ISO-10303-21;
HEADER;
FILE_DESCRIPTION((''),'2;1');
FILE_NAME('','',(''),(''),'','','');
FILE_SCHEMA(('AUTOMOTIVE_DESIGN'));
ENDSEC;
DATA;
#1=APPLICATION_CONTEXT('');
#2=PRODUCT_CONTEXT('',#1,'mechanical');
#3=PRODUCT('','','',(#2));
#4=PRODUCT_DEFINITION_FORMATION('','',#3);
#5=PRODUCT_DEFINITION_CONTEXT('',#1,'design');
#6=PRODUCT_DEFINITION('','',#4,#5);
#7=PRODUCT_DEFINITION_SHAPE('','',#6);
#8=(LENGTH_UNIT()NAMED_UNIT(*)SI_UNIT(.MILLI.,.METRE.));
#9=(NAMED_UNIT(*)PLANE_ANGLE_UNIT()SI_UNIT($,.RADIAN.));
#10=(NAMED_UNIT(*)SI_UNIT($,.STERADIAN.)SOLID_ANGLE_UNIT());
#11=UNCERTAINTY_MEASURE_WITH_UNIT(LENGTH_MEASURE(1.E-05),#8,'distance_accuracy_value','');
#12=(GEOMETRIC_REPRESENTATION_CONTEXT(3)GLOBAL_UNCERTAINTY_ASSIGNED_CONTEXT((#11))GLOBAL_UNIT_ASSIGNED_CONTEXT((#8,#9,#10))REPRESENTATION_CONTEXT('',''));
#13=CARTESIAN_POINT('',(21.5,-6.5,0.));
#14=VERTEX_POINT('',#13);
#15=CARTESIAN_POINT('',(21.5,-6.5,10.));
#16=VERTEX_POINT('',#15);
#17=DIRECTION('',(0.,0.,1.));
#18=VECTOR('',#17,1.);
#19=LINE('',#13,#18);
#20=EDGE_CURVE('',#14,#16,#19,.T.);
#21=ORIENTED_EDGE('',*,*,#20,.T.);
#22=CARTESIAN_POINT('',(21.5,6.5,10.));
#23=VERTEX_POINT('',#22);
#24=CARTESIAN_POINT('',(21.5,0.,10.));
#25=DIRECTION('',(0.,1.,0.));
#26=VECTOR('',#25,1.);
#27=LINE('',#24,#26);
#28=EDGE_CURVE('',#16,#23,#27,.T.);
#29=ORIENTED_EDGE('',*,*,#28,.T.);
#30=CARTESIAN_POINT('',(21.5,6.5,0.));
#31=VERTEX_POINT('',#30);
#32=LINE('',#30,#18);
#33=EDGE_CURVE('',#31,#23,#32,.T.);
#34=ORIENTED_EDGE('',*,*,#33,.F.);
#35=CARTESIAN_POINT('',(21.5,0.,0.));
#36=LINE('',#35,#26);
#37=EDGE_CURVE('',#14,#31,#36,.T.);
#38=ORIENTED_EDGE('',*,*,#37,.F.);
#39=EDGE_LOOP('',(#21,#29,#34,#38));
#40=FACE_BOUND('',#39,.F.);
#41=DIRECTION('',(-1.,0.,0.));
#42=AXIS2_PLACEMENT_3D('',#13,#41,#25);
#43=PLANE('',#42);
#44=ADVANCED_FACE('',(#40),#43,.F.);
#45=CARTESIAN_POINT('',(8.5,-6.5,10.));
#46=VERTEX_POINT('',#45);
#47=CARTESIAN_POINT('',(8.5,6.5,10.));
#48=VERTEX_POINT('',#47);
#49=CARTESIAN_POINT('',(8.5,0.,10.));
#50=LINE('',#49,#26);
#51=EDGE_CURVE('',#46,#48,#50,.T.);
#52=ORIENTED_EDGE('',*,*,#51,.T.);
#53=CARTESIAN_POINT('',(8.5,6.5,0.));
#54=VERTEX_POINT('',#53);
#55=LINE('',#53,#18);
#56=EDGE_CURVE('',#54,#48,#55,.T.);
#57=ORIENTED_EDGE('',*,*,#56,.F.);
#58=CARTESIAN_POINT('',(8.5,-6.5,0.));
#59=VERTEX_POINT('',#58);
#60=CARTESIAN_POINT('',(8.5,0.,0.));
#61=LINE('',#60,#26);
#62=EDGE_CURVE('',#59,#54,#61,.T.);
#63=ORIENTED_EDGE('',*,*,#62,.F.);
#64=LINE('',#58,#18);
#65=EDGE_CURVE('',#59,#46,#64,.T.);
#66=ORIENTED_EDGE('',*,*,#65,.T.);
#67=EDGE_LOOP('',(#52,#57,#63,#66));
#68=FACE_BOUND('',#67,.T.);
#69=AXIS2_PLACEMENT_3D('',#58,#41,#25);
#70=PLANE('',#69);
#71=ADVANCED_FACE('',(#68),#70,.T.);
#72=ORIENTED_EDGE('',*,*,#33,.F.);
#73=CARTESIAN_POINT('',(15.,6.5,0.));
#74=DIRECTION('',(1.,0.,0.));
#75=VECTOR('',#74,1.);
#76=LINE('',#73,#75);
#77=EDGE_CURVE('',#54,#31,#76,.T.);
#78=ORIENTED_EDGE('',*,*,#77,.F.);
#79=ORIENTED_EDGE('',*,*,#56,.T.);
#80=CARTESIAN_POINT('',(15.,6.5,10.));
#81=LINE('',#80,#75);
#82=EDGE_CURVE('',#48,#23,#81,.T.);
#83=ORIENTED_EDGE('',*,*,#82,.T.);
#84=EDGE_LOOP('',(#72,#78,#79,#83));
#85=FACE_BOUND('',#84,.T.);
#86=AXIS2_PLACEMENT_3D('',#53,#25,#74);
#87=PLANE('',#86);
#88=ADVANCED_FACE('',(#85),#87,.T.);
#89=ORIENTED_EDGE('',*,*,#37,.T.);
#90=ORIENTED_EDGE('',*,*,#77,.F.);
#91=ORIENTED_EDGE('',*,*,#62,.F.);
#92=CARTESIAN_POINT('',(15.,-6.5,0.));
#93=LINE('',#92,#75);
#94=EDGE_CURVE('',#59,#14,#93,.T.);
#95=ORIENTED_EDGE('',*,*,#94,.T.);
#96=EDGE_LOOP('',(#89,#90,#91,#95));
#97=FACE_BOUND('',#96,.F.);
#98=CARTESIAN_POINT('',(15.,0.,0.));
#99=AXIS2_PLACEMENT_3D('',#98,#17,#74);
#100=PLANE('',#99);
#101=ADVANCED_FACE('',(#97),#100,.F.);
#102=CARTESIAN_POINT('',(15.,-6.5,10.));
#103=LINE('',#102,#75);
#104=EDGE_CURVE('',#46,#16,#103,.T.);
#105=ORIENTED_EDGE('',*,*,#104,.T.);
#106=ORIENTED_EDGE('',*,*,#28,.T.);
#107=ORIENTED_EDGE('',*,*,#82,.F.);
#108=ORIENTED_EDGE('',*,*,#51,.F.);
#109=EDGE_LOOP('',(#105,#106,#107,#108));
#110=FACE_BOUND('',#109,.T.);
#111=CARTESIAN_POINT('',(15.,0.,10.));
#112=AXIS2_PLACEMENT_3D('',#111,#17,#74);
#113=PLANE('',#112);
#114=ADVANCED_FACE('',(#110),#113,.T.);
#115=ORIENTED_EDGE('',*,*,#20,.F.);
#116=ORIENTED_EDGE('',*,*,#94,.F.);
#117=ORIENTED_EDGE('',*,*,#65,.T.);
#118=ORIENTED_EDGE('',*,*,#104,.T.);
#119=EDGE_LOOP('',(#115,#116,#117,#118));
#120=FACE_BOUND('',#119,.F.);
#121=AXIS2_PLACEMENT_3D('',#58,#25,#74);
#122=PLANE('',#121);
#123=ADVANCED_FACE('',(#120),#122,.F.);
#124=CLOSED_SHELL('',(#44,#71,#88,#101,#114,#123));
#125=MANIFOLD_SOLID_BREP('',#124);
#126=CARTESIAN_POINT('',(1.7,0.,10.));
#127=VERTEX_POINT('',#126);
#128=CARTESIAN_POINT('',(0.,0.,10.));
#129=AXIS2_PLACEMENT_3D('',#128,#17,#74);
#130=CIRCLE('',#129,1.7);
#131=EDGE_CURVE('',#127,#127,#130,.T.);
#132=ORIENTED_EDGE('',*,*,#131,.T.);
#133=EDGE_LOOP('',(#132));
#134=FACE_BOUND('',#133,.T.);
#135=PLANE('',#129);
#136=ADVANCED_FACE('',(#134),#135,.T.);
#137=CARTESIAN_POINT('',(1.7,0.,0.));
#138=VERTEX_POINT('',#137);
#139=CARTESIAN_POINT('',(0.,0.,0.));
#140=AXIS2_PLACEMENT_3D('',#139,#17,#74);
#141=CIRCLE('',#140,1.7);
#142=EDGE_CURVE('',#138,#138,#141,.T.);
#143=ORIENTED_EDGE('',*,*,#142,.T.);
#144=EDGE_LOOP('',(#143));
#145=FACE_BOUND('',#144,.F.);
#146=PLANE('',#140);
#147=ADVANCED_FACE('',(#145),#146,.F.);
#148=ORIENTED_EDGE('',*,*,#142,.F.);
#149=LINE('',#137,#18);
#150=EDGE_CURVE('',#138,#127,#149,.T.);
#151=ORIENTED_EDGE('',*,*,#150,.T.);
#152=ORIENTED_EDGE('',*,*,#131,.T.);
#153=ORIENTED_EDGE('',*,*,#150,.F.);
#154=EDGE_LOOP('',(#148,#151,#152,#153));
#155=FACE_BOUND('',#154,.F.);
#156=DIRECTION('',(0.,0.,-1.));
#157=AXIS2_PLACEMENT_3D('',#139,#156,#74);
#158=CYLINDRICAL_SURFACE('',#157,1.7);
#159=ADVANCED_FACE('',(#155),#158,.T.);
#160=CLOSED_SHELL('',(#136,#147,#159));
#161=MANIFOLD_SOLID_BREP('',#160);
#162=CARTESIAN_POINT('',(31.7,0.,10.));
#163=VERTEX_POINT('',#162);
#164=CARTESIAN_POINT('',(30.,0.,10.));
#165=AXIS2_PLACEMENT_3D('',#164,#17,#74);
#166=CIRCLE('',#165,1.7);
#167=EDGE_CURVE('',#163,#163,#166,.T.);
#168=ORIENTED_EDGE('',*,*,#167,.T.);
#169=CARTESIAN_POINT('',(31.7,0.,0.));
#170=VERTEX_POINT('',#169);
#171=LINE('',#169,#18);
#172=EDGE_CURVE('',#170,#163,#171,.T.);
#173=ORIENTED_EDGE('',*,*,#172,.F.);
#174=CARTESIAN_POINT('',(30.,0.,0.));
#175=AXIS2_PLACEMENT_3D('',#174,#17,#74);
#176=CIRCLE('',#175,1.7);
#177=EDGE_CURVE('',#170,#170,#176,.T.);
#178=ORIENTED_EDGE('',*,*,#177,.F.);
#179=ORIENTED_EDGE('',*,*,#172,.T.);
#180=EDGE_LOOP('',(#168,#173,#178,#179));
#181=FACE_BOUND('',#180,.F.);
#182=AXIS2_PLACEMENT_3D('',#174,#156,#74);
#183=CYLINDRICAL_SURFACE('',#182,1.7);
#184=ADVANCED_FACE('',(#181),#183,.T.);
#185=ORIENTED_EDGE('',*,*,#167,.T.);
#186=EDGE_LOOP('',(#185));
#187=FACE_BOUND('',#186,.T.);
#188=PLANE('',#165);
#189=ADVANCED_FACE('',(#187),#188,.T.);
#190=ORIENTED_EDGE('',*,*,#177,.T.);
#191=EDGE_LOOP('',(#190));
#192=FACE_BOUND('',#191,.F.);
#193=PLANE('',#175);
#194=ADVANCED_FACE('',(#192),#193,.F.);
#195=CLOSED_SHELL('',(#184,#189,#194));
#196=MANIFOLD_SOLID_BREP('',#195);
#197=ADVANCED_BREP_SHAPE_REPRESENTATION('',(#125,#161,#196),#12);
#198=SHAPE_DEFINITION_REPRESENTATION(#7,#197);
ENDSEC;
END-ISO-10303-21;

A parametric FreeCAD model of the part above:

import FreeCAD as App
import Part
import Sketcher

V = App.Vector

doc = App.newDocument("Part")
body = doc.addObject("PartDesign::Body", "Body")

# Sketch on XY plane
sketch1 = body.newObject("Sketcher::SketchObject", "Sketch")
sketch1.AttachmentSupport = (doc.getObject("XY_Plane"), [""])
sketch1.MapMode = "FlatFace"
sketch1.addGeometry(Part.Circle(V(0, 0, 0), V(0, 0, 1), 1.7), False)
sketch1.addConstraint([
    Sketcher.Constraint("Coincident", 0, 3, -1, 1),
    Sketcher.Constraint("Diameter", 0, 3.4),
])
pad1 = body.newObject("PartDesign::Pad", "Pad")
pad1.Profile = sketch1
pad1.Length = 10
body2 = doc.addObject("PartDesign::Body", "Body001")

# Sketch on XY plane
sketch2 = body2.newObject("Sketcher::SketchObject", "Sketch001")
sketch2.AttachmentSupport = (doc.getObject("XY_Plane001"), [""])
sketch2.MapMode = "FlatFace"
sketch2.addGeometry([
    Part.LineSegment(V(8, 6, 0), V(8, -6, 0)),
    Part.LineSegment(V(8, -6, 0), V(22, -6, 0)),
    Part.LineSegment(V(22, -6, 0), V(22, 6, 0)),
    Part.LineSegment(V(22, 6, 0), V(8, 6, 0)),
], False)
sketch2.addConstraint([
    Sketcher.Constraint("Coincident", 0, 2, 1, 1),
    Sketcher.Constraint("Coincident", 1, 2, 2, 1),
    Sketcher.Constraint("Coincident", 2, 2, 3, 1),
    Sketcher.Constraint("Coincident", 3, 2, 0, 1),
    Sketcher.Constraint("Vertical", 0),
    Sketcher.Constraint("Horizontal", 1),
    Sketcher.Constraint("Vertical", 2),
    Sketcher.Constraint("Horizontal", 3),
    Sketcher.Constraint("Equal", 3, 0),
    Sketcher.Constraint("DistanceX", 1, 1, 1, 2, 13.0),
    Sketcher.Constraint("DistanceX", -1, 1, 0, 2, 8.5),
    Sketcher.Constraint("DistanceY", 0, 2, -1, 1, 6.5),
])
pad2 = body2.newObject("PartDesign::Pad", "Pad001")
pad2.Profile = sketch2
pad2.Length = 10
body3 = doc.addObject("PartDesign::Body", "Body002")
body3.AllowCompound = True

# Sketch on XY plane
sketch3 = body3.newObject("Sketcher::SketchObject", "Sketch002")
sketch3.AttachmentSupport = (doc.getObject("XY_Plane002"), [""])
sketch3.MapMode = "FlatFace"
sketch3.addGeometry(Part.Circle(V(30, 0, 0), V(0, 0, 1), 1.7), False)
sketch3.addConstraint([
    Sketcher.Constraint("PointOnObject", 0, 3, -1),
    Sketcher.Constraint("Diameter", 0, 3.4),
    Sketcher.Constraint("DistanceX", -1, 1, 0, 3, 30.0),
])
pad3 = body3.newObject("PartDesign::Pad", "Pad002")
pad3.Profile = sketch3
pad3.Length = 10
doc.recompute()

boolean = body3.newObject("PartDesign::Boolean", "Boolean")
boolean.Type = "Fuse"
boolean.addObjects([body])
doc.recompute()

boolean2 = body3.newObject("PartDesign::Boolean", "Boolean001")
boolean2.Type = "Fuse"
boolean2.addObjects([body2])

doc.recompute()
